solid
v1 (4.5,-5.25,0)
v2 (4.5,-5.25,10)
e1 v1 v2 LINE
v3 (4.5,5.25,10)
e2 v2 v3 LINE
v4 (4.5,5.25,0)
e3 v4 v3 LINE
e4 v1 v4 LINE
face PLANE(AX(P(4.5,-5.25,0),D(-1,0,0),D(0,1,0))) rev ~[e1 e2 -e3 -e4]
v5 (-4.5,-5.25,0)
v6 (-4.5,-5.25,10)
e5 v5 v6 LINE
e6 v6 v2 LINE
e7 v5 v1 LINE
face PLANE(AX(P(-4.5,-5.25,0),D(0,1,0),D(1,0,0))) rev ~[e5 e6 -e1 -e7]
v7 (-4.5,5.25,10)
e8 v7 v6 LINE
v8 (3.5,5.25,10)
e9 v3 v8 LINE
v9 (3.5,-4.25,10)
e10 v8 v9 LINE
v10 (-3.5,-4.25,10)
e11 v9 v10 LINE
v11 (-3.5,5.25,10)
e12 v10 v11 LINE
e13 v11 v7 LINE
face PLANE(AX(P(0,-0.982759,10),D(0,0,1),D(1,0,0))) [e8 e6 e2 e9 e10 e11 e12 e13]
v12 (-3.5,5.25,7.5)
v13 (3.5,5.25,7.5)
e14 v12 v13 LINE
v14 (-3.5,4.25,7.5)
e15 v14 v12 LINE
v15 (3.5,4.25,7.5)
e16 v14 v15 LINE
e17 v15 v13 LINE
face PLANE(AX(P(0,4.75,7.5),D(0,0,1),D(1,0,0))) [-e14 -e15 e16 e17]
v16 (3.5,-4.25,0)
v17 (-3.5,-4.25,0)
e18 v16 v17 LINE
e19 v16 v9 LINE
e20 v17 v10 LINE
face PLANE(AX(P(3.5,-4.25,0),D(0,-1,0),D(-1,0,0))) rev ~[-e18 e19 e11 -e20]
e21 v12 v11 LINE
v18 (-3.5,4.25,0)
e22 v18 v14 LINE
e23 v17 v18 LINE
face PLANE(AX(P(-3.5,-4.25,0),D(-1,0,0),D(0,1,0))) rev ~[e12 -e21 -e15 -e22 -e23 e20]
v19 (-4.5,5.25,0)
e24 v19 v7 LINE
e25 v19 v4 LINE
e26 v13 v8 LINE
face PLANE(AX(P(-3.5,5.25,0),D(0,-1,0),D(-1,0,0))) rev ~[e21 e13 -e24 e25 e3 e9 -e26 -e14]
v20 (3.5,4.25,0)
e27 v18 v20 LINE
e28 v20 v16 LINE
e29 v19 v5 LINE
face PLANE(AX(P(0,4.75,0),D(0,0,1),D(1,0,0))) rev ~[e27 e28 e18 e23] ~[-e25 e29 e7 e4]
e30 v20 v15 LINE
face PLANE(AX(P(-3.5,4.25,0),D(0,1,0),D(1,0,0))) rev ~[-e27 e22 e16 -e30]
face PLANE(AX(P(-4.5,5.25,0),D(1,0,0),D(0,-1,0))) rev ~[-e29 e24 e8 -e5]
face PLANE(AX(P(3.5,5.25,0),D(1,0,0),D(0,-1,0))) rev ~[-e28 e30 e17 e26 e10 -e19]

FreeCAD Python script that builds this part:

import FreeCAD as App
import Part
import Sketcher
from FreeCAD import Vector

doc = App.newDocument("Part")
body = doc.addObject("PartDesign::Body", "Body")

sketch1 = doc.addObject("Sketcher::SketchObject", "Sketch")
body.addObject(sketch1)
sketch1.AttachmentSupport = (doc.XY_Plane, [""])
sketch1.MapMode = "FlatFace"
sketch1.addGeometry(Part.LineSegment(Vector(-3.5, -4.25, 0), Vector(-3.5, 5.25, 0)), False)
sketch1.addGeometry(Part.LineSegment(Vector(-3.5, 5.25, 0), Vector(-4.5, 5.25, 0)), False)
sketch1.addGeometry(Part.LineSegment(Vector(-4.5, 5.25, 0), Vector(-4.5, -5.25, 0)), False)
sketch1.addGeometry(Part.LineSegment(Vector(-4.5, -5.25, 0), Vector(4.5, -5.25, 0)), False)
sketch1.addGeometry(Part.LineSegment(Vector(4.5, -5.25, 0), Vector(4.5, 5.25, 0)), False)
sketch1.addGeometry(Part.LineSegment(Vector(4.5, 5.25, 0), Vector(3.5, 5.25, 0)), False)
sketch1.addGeometry(Part.LineSegment(Vector(3.5, 5.25, 0), Vector(3.5, -4.25, 0)), False)
sketch1.addGeometry(Part.LineSegment(Vector(3.5, -4.25, 0), Vector(-3.5, -4.25, 0)), False)
sketch1.addConstraint(Sketcher.Constraint("Coincident", 0, 2, 1, 1))
sketch1.addConstraint(Sketcher.Constraint("Coincident", 1, 2, 2, 1))
sketch1.addConstraint(Sketcher.Constraint("Coincident", 2, 2, 3, 1))
sketch1.addConstraint(Sketcher.Constraint("Coincident", 3, 2, 4, 1))
sketch1.addConstraint(Sketcher.Constraint("Coincident", 4, 2, 5, 1))
sketch1.addConstraint(Sketcher.Constraint("Coincident", 5, 2, 6, 1))
sketch1.addConstraint(Sketcher.Constraint("Coincident", 6, 2, 7, 1))
sketch1.addConstraint(Sketcher.Constraint("Coincident", 7, 2, 0, 1))
sketch1.addConstraint(Sketcher.Constraint("Vertical", 0))
sketch1.addConstraint(Sketcher.Constraint("Horizontal", 1))
sketch1.addConstraint(Sketcher.Constraint("Vertical", 2))
sketch1.addConstraint(Sketcher.Constraint("Horizontal", 3))
sketch1.addConstraint(Sketcher.Constraint("Vertical", 4))
sketch1.addConstraint(Sketcher.Constraint("Horizontal", 5))
sketch1.addConstraint(Sketcher.Constraint("Vertical", 6))
sketch1.addConstraint(Sketcher.Constraint("Horizontal", 7))
sketch1.addConstraint(Sketcher.Constraint("Symmetric", 1, 2, 3, 2, -1, 1))
sketch1.addConstraint(Sketcher.Constraint("Symmetric", 0, 2, 5, 2, -2))
sketch1.addConstraint(Sketcher.Constraint("DistanceX", 1, 2, 1, 1, 1.0))
sketch1.addConstraint(Sketcher.Constraint("DistanceX", 3, 1, 3, 2, 9.0))
sketch1.addConstraint(Sketcher.Constraint("DistanceY", 0, 1, 0, 2, 9.5))
sketch1.addConstraint(Sketcher.Constraint("DistanceY", 2, 2, 2, 1, 10.5))
pad1 = doc.addObject("PartDesign::Pad", "Pad")
body.addObject(pad1)
pad1.Profile = sketch1
pad1.Length = 10

sketch2 = doc.addObject("Sketcher::SketchObject", "Sketch001")
body.addObject(sketch2)
sketch2.AttachmentSupport = (doc.XY_Plane, [""])
sketch2.MapMode = "FlatFace"
sketch2.addGeometry(Part.LineSegment(Vector(-3.5, 5.25, 0), Vector(-3.5, 4.25, 0)), False)
sketch2.addGeometry(Part.LineSegment(Vector(-3.5, 4.25, 0), Vector(3.5, 4.25, 0)), False)
sketch2.addGeometry(Part.LineSegment(Vector(3.5, 4.25, 0), Vector(3.5, 5.25, 0)), False)
sketch2.addGeometry(Part.LineSegment(Vector(3.5, 5.25, 0), Vector(-3.5, 5.25, 0)), False)
sketch2.addConstraint(Sketcher.Constraint("Coincident", 0, 2, 1, 1))
sketch2.addConstraint(Sketcher.Constraint("Coincident", 1, 2, 2, 1))
sketch2.addConstraint(Sketcher.Constraint("Coincident", 2, 2, 3, 1))
sketch2.addConstraint(Sketcher.Constraint("Coincident", 3, 2, 0, 1))
sketch2.addConstraint(Sketcher.Constraint("Vertical", 0))
sketch2.addConstraint(Sketcher.Constraint("Horizontal", 1))
sketch2.addConstraint(Sketcher.Constraint("Vertical", 2))
sketch2.addConstraint(Sketcher.Constraint("Horizontal", 3))
sketch2.addConstraint(Sketcher.Constraint("DistanceX", 1, 1, 1, 2, 7.0))
sketch2.addConstraint(Sketcher.Constraint("DistanceY", 0, 2, 0, 1, 1.0))
sketch2.addConstraint(Sketcher.Constraint("DistanceX", 0, 2, -1, 1, 3.5))
sketch2.addConstraint(Sketcher.Constraint("DistanceY", -1, 1, 0, 2, 4.25))
pad2 = doc.addObject("PartDesign::Pad", "Pad001")
body.addObject(pad2)
pad2.Profile = sketch2
pad2.Length = 7.5

doc.recompute()
